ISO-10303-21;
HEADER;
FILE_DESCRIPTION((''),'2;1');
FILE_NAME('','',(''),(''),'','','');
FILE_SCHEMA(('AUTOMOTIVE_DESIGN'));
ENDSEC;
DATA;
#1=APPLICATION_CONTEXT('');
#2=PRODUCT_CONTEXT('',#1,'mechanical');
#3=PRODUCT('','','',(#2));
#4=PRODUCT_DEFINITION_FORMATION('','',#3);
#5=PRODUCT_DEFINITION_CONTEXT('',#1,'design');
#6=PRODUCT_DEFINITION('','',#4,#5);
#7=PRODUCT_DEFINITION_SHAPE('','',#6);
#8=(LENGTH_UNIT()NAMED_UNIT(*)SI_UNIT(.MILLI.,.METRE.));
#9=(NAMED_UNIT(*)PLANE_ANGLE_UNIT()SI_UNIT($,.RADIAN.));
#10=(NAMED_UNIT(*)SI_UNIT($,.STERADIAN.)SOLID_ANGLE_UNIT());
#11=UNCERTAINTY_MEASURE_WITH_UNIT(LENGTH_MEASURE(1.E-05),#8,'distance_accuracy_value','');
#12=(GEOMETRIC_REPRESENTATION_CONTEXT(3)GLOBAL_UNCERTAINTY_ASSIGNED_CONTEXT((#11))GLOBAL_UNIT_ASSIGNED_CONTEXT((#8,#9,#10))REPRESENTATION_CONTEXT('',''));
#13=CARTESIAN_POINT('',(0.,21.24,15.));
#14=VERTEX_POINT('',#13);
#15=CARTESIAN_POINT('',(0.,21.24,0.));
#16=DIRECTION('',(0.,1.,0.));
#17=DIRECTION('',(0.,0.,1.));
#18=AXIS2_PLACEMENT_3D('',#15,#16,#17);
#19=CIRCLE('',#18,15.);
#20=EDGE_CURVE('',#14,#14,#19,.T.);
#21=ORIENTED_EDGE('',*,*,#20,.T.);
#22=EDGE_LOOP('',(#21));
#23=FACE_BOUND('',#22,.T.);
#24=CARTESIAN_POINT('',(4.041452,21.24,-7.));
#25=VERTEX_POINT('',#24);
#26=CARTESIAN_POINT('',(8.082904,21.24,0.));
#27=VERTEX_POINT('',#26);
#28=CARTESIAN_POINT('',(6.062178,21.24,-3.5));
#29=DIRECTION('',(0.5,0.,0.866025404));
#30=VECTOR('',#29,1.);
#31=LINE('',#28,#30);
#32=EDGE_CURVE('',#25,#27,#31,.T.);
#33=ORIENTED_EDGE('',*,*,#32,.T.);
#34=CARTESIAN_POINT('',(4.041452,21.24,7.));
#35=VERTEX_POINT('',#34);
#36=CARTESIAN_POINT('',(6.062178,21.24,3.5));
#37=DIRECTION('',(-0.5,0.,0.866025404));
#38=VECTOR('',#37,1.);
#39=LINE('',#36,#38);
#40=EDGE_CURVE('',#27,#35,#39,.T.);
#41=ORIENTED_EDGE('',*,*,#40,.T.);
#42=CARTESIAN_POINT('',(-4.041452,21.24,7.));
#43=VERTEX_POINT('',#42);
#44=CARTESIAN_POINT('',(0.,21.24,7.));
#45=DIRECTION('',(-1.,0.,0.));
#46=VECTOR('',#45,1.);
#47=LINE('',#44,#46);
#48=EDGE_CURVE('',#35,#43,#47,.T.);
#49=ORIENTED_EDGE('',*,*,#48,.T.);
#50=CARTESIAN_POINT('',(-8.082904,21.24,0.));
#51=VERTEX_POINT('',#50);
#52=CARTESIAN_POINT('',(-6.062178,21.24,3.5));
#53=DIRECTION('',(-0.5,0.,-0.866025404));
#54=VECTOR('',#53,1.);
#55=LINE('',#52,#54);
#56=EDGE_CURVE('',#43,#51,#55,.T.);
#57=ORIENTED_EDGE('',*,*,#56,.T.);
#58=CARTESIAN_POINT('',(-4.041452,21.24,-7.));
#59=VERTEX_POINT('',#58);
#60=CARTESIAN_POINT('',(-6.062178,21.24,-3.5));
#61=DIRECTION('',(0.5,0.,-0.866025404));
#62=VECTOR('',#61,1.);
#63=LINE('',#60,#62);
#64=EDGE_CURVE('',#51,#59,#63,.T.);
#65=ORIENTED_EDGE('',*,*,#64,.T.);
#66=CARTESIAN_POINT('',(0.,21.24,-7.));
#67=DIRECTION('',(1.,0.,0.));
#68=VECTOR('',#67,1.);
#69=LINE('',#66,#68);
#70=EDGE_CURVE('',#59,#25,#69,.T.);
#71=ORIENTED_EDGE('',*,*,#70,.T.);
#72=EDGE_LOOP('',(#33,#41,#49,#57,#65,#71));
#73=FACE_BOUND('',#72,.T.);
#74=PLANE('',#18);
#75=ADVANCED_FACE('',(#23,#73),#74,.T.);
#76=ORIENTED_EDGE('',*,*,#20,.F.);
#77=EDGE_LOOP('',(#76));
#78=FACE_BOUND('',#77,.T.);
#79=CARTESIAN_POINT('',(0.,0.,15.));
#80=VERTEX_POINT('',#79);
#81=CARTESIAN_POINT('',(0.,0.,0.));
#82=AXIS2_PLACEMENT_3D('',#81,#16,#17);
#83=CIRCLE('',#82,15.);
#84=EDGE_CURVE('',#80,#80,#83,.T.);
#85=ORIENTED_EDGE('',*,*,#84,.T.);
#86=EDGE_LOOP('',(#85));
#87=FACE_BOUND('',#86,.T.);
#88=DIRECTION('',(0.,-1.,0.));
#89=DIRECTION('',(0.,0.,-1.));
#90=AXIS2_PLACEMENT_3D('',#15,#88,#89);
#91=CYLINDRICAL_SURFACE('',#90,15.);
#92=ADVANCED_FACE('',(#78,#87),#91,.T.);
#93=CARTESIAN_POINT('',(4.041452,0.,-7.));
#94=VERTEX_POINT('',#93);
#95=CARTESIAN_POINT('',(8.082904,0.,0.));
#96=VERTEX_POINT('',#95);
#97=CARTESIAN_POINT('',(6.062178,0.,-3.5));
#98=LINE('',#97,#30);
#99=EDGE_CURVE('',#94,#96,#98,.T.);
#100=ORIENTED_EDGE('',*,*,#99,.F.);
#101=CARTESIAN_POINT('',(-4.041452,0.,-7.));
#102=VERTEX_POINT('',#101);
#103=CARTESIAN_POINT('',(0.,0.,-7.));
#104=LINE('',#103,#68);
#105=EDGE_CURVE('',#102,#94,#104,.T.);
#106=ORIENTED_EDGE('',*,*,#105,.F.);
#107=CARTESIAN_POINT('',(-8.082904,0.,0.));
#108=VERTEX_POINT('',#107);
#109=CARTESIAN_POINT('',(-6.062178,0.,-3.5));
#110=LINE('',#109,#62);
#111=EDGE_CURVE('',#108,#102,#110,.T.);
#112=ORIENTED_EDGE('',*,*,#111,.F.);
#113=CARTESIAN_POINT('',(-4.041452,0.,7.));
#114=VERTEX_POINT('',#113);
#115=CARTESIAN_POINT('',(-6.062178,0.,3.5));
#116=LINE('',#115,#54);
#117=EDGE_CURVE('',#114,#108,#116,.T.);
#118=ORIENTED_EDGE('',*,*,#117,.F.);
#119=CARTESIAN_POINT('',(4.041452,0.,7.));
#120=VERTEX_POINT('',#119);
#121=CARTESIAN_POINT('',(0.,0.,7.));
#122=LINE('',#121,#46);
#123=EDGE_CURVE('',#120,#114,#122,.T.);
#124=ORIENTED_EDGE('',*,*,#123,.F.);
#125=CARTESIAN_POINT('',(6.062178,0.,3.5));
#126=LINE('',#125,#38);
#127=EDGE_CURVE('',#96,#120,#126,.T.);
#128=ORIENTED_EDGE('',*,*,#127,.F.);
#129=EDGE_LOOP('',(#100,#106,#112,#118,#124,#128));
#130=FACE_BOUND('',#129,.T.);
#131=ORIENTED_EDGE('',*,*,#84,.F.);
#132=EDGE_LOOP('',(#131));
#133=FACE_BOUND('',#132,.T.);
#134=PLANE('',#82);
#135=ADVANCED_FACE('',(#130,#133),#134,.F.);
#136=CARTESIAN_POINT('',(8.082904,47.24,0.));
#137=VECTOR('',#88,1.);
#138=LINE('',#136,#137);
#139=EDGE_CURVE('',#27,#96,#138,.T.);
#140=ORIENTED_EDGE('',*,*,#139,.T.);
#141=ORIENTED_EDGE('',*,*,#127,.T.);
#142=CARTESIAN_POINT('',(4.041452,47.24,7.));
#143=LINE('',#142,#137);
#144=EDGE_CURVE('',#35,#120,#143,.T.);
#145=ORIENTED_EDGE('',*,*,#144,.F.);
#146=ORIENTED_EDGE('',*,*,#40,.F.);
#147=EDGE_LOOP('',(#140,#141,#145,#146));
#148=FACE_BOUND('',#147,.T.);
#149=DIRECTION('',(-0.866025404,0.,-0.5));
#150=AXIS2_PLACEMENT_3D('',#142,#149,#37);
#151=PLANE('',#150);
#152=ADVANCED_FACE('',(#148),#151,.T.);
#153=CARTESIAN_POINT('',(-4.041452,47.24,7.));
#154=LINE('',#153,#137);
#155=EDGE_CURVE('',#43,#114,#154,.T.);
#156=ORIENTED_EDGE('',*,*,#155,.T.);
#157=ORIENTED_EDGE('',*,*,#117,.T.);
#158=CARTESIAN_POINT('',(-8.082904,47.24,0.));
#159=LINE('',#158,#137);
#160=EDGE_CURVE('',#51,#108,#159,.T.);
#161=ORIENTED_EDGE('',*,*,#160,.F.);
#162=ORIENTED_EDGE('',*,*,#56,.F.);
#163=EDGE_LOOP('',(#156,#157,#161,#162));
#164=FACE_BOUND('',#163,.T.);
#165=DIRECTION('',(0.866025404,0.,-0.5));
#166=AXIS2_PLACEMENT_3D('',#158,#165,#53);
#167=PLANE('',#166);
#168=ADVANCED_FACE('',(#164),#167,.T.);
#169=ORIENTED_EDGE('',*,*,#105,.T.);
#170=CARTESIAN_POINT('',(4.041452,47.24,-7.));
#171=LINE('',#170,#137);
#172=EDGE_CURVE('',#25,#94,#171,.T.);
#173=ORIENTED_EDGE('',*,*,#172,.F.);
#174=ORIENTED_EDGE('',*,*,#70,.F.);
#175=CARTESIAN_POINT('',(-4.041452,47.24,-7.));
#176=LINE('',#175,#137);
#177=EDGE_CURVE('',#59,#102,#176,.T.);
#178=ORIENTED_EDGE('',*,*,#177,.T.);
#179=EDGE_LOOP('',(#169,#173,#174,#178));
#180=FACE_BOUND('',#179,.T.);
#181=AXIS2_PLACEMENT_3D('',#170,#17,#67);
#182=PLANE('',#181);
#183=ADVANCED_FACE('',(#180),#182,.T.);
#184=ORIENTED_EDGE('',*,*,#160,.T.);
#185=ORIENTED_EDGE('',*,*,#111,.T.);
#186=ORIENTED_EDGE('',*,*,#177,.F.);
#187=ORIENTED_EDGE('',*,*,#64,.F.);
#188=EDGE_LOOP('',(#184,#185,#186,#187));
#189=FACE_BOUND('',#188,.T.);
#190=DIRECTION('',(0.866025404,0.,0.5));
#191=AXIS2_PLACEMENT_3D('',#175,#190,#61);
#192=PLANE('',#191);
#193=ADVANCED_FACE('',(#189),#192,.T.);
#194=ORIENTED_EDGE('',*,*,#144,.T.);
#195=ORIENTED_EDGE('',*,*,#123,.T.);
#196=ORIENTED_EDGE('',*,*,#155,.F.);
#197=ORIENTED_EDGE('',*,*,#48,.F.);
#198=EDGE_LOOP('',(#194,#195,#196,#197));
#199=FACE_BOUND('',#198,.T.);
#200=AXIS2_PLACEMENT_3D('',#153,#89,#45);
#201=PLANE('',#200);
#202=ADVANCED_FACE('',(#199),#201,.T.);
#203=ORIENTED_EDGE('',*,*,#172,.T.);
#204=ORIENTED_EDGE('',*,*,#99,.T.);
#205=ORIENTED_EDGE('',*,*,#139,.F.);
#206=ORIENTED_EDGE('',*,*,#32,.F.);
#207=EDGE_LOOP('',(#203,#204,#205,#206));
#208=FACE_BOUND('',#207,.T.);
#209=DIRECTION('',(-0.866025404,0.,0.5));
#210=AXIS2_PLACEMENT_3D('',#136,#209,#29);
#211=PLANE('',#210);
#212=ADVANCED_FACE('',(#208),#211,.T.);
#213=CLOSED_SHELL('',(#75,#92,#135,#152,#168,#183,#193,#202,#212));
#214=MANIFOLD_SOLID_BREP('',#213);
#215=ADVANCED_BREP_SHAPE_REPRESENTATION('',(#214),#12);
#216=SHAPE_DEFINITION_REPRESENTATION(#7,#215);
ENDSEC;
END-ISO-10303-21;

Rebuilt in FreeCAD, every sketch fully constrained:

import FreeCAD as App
import Part
import Sketcher
Q = App.Units.Quantity

doc = App.newDocument("Part")
body = doc.addObject("PartDesign::Body", "Body")

# Sketch on XZ plane
sketch1 = body.newObject("Sketcher::SketchObject", "Sketch")
sketch1.AttachmentSupport = (doc.getObject("XZ_Plane"), [""])
sketch1.MapMode = "FlatFace"
sketch1.addGeometry(Part.Circle(App.Vector(0, 0, 0), App.Vector(0, 0, 1), 15), False)
sketch1.addConstraint([
    Sketcher.Constraint("Coincident", 0, 3, -1, 1),
    Sketcher.Constraint("Diameter", 0, Q("30 mm")),
])
pad1 = body.newObject("PartDesign::Pad", "Pad")
pad1.Profile = sketch1
pad1.Length = 21.24
pad1.Reversed = True

# Sketch on XZ plane
sketch2 = body.newObject("Sketcher::SketchObject", "Sketch001")
sketch2.AttachmentSupport = (doc.getObject("XZ_Plane"), [""])
sketch2.MapMode = "FlatFace"
sketch2.AttachmentOffset = App.Placement(App.Vector(0, 0, -21.24), App.Rotation())
sketch2.addGeometry([
    Part.LineSegment(App.Vector(8, 0, 0), App.Vector(4, -7, 0)),  # 0
    Part.LineSegment(App.Vector(4, -7, 0), App.Vector(-4, -7, 0)),  # 1
    Part.LineSegment(App.Vector(-4, -7, 0), App.Vector(-8, 0, 0)),  # 2
    Part.LineSegment(App.Vector(-8, 0, 0), App.Vector(-4, 7, 0)),  # 3
    Part.LineSegment(App.Vector(-4, 7, 0), App.Vector(4, 7, 0)),  # 4
    Part.LineSegment(App.Vector(4, 7, 0), App.Vector(8, 0, 0)),  # 5
], False)
sketch2.addConstraint([
    Sketcher.Constraint("Coincident", 0, 2, 1, 1),
    Sketcher.Constraint("Coincident", 1, 2, 2, 1),
    Sketcher.Constraint("Coincident", 2, 2, 3, 1),
    Sketcher.Constraint("Coincident", 3, 2, 4, 1),
    Sketcher.Constraint("Coincident", 4, 2, 5, 1),
    Sketcher.Constraint("Coincident", 5, 2, 0, 1),
    Sketcher.Constraint("Horizontal", 1),
    Sketcher.Constraint("Horizontal", 4),
    Sketcher.Constraint("Symmetric", 0, 2, 3, 2, -1, 1),
    Sketcher.Constraint("Symmetric", 2, 2, 5, 2, -1, 1),
    Sketcher.Constraint("PointOnObject", 2, 2, -1),
    Sketcher.Constraint("Parallel", 2, 5),
    Sketcher.Constraint("Vertical", 1, 2, 3, 2),
    Sketcher.Constraint("Angle", 0, Q("-120 deg")),
    Sketcher.Constraint("DistanceY", 0, 2, -1, 1, Q("7 mm")),
    Sketcher.Constraint("DistanceX", 1, 2, 1, 1, Q("8.082904 mm")),
])
pocket1 = body.newObject("PartDesign::Pocket", "Pocket")
pocket1.Profile = sketch2
pocket1.Type = "ThroughAll"
pocket1.Midplane = True

doc.recompute()
